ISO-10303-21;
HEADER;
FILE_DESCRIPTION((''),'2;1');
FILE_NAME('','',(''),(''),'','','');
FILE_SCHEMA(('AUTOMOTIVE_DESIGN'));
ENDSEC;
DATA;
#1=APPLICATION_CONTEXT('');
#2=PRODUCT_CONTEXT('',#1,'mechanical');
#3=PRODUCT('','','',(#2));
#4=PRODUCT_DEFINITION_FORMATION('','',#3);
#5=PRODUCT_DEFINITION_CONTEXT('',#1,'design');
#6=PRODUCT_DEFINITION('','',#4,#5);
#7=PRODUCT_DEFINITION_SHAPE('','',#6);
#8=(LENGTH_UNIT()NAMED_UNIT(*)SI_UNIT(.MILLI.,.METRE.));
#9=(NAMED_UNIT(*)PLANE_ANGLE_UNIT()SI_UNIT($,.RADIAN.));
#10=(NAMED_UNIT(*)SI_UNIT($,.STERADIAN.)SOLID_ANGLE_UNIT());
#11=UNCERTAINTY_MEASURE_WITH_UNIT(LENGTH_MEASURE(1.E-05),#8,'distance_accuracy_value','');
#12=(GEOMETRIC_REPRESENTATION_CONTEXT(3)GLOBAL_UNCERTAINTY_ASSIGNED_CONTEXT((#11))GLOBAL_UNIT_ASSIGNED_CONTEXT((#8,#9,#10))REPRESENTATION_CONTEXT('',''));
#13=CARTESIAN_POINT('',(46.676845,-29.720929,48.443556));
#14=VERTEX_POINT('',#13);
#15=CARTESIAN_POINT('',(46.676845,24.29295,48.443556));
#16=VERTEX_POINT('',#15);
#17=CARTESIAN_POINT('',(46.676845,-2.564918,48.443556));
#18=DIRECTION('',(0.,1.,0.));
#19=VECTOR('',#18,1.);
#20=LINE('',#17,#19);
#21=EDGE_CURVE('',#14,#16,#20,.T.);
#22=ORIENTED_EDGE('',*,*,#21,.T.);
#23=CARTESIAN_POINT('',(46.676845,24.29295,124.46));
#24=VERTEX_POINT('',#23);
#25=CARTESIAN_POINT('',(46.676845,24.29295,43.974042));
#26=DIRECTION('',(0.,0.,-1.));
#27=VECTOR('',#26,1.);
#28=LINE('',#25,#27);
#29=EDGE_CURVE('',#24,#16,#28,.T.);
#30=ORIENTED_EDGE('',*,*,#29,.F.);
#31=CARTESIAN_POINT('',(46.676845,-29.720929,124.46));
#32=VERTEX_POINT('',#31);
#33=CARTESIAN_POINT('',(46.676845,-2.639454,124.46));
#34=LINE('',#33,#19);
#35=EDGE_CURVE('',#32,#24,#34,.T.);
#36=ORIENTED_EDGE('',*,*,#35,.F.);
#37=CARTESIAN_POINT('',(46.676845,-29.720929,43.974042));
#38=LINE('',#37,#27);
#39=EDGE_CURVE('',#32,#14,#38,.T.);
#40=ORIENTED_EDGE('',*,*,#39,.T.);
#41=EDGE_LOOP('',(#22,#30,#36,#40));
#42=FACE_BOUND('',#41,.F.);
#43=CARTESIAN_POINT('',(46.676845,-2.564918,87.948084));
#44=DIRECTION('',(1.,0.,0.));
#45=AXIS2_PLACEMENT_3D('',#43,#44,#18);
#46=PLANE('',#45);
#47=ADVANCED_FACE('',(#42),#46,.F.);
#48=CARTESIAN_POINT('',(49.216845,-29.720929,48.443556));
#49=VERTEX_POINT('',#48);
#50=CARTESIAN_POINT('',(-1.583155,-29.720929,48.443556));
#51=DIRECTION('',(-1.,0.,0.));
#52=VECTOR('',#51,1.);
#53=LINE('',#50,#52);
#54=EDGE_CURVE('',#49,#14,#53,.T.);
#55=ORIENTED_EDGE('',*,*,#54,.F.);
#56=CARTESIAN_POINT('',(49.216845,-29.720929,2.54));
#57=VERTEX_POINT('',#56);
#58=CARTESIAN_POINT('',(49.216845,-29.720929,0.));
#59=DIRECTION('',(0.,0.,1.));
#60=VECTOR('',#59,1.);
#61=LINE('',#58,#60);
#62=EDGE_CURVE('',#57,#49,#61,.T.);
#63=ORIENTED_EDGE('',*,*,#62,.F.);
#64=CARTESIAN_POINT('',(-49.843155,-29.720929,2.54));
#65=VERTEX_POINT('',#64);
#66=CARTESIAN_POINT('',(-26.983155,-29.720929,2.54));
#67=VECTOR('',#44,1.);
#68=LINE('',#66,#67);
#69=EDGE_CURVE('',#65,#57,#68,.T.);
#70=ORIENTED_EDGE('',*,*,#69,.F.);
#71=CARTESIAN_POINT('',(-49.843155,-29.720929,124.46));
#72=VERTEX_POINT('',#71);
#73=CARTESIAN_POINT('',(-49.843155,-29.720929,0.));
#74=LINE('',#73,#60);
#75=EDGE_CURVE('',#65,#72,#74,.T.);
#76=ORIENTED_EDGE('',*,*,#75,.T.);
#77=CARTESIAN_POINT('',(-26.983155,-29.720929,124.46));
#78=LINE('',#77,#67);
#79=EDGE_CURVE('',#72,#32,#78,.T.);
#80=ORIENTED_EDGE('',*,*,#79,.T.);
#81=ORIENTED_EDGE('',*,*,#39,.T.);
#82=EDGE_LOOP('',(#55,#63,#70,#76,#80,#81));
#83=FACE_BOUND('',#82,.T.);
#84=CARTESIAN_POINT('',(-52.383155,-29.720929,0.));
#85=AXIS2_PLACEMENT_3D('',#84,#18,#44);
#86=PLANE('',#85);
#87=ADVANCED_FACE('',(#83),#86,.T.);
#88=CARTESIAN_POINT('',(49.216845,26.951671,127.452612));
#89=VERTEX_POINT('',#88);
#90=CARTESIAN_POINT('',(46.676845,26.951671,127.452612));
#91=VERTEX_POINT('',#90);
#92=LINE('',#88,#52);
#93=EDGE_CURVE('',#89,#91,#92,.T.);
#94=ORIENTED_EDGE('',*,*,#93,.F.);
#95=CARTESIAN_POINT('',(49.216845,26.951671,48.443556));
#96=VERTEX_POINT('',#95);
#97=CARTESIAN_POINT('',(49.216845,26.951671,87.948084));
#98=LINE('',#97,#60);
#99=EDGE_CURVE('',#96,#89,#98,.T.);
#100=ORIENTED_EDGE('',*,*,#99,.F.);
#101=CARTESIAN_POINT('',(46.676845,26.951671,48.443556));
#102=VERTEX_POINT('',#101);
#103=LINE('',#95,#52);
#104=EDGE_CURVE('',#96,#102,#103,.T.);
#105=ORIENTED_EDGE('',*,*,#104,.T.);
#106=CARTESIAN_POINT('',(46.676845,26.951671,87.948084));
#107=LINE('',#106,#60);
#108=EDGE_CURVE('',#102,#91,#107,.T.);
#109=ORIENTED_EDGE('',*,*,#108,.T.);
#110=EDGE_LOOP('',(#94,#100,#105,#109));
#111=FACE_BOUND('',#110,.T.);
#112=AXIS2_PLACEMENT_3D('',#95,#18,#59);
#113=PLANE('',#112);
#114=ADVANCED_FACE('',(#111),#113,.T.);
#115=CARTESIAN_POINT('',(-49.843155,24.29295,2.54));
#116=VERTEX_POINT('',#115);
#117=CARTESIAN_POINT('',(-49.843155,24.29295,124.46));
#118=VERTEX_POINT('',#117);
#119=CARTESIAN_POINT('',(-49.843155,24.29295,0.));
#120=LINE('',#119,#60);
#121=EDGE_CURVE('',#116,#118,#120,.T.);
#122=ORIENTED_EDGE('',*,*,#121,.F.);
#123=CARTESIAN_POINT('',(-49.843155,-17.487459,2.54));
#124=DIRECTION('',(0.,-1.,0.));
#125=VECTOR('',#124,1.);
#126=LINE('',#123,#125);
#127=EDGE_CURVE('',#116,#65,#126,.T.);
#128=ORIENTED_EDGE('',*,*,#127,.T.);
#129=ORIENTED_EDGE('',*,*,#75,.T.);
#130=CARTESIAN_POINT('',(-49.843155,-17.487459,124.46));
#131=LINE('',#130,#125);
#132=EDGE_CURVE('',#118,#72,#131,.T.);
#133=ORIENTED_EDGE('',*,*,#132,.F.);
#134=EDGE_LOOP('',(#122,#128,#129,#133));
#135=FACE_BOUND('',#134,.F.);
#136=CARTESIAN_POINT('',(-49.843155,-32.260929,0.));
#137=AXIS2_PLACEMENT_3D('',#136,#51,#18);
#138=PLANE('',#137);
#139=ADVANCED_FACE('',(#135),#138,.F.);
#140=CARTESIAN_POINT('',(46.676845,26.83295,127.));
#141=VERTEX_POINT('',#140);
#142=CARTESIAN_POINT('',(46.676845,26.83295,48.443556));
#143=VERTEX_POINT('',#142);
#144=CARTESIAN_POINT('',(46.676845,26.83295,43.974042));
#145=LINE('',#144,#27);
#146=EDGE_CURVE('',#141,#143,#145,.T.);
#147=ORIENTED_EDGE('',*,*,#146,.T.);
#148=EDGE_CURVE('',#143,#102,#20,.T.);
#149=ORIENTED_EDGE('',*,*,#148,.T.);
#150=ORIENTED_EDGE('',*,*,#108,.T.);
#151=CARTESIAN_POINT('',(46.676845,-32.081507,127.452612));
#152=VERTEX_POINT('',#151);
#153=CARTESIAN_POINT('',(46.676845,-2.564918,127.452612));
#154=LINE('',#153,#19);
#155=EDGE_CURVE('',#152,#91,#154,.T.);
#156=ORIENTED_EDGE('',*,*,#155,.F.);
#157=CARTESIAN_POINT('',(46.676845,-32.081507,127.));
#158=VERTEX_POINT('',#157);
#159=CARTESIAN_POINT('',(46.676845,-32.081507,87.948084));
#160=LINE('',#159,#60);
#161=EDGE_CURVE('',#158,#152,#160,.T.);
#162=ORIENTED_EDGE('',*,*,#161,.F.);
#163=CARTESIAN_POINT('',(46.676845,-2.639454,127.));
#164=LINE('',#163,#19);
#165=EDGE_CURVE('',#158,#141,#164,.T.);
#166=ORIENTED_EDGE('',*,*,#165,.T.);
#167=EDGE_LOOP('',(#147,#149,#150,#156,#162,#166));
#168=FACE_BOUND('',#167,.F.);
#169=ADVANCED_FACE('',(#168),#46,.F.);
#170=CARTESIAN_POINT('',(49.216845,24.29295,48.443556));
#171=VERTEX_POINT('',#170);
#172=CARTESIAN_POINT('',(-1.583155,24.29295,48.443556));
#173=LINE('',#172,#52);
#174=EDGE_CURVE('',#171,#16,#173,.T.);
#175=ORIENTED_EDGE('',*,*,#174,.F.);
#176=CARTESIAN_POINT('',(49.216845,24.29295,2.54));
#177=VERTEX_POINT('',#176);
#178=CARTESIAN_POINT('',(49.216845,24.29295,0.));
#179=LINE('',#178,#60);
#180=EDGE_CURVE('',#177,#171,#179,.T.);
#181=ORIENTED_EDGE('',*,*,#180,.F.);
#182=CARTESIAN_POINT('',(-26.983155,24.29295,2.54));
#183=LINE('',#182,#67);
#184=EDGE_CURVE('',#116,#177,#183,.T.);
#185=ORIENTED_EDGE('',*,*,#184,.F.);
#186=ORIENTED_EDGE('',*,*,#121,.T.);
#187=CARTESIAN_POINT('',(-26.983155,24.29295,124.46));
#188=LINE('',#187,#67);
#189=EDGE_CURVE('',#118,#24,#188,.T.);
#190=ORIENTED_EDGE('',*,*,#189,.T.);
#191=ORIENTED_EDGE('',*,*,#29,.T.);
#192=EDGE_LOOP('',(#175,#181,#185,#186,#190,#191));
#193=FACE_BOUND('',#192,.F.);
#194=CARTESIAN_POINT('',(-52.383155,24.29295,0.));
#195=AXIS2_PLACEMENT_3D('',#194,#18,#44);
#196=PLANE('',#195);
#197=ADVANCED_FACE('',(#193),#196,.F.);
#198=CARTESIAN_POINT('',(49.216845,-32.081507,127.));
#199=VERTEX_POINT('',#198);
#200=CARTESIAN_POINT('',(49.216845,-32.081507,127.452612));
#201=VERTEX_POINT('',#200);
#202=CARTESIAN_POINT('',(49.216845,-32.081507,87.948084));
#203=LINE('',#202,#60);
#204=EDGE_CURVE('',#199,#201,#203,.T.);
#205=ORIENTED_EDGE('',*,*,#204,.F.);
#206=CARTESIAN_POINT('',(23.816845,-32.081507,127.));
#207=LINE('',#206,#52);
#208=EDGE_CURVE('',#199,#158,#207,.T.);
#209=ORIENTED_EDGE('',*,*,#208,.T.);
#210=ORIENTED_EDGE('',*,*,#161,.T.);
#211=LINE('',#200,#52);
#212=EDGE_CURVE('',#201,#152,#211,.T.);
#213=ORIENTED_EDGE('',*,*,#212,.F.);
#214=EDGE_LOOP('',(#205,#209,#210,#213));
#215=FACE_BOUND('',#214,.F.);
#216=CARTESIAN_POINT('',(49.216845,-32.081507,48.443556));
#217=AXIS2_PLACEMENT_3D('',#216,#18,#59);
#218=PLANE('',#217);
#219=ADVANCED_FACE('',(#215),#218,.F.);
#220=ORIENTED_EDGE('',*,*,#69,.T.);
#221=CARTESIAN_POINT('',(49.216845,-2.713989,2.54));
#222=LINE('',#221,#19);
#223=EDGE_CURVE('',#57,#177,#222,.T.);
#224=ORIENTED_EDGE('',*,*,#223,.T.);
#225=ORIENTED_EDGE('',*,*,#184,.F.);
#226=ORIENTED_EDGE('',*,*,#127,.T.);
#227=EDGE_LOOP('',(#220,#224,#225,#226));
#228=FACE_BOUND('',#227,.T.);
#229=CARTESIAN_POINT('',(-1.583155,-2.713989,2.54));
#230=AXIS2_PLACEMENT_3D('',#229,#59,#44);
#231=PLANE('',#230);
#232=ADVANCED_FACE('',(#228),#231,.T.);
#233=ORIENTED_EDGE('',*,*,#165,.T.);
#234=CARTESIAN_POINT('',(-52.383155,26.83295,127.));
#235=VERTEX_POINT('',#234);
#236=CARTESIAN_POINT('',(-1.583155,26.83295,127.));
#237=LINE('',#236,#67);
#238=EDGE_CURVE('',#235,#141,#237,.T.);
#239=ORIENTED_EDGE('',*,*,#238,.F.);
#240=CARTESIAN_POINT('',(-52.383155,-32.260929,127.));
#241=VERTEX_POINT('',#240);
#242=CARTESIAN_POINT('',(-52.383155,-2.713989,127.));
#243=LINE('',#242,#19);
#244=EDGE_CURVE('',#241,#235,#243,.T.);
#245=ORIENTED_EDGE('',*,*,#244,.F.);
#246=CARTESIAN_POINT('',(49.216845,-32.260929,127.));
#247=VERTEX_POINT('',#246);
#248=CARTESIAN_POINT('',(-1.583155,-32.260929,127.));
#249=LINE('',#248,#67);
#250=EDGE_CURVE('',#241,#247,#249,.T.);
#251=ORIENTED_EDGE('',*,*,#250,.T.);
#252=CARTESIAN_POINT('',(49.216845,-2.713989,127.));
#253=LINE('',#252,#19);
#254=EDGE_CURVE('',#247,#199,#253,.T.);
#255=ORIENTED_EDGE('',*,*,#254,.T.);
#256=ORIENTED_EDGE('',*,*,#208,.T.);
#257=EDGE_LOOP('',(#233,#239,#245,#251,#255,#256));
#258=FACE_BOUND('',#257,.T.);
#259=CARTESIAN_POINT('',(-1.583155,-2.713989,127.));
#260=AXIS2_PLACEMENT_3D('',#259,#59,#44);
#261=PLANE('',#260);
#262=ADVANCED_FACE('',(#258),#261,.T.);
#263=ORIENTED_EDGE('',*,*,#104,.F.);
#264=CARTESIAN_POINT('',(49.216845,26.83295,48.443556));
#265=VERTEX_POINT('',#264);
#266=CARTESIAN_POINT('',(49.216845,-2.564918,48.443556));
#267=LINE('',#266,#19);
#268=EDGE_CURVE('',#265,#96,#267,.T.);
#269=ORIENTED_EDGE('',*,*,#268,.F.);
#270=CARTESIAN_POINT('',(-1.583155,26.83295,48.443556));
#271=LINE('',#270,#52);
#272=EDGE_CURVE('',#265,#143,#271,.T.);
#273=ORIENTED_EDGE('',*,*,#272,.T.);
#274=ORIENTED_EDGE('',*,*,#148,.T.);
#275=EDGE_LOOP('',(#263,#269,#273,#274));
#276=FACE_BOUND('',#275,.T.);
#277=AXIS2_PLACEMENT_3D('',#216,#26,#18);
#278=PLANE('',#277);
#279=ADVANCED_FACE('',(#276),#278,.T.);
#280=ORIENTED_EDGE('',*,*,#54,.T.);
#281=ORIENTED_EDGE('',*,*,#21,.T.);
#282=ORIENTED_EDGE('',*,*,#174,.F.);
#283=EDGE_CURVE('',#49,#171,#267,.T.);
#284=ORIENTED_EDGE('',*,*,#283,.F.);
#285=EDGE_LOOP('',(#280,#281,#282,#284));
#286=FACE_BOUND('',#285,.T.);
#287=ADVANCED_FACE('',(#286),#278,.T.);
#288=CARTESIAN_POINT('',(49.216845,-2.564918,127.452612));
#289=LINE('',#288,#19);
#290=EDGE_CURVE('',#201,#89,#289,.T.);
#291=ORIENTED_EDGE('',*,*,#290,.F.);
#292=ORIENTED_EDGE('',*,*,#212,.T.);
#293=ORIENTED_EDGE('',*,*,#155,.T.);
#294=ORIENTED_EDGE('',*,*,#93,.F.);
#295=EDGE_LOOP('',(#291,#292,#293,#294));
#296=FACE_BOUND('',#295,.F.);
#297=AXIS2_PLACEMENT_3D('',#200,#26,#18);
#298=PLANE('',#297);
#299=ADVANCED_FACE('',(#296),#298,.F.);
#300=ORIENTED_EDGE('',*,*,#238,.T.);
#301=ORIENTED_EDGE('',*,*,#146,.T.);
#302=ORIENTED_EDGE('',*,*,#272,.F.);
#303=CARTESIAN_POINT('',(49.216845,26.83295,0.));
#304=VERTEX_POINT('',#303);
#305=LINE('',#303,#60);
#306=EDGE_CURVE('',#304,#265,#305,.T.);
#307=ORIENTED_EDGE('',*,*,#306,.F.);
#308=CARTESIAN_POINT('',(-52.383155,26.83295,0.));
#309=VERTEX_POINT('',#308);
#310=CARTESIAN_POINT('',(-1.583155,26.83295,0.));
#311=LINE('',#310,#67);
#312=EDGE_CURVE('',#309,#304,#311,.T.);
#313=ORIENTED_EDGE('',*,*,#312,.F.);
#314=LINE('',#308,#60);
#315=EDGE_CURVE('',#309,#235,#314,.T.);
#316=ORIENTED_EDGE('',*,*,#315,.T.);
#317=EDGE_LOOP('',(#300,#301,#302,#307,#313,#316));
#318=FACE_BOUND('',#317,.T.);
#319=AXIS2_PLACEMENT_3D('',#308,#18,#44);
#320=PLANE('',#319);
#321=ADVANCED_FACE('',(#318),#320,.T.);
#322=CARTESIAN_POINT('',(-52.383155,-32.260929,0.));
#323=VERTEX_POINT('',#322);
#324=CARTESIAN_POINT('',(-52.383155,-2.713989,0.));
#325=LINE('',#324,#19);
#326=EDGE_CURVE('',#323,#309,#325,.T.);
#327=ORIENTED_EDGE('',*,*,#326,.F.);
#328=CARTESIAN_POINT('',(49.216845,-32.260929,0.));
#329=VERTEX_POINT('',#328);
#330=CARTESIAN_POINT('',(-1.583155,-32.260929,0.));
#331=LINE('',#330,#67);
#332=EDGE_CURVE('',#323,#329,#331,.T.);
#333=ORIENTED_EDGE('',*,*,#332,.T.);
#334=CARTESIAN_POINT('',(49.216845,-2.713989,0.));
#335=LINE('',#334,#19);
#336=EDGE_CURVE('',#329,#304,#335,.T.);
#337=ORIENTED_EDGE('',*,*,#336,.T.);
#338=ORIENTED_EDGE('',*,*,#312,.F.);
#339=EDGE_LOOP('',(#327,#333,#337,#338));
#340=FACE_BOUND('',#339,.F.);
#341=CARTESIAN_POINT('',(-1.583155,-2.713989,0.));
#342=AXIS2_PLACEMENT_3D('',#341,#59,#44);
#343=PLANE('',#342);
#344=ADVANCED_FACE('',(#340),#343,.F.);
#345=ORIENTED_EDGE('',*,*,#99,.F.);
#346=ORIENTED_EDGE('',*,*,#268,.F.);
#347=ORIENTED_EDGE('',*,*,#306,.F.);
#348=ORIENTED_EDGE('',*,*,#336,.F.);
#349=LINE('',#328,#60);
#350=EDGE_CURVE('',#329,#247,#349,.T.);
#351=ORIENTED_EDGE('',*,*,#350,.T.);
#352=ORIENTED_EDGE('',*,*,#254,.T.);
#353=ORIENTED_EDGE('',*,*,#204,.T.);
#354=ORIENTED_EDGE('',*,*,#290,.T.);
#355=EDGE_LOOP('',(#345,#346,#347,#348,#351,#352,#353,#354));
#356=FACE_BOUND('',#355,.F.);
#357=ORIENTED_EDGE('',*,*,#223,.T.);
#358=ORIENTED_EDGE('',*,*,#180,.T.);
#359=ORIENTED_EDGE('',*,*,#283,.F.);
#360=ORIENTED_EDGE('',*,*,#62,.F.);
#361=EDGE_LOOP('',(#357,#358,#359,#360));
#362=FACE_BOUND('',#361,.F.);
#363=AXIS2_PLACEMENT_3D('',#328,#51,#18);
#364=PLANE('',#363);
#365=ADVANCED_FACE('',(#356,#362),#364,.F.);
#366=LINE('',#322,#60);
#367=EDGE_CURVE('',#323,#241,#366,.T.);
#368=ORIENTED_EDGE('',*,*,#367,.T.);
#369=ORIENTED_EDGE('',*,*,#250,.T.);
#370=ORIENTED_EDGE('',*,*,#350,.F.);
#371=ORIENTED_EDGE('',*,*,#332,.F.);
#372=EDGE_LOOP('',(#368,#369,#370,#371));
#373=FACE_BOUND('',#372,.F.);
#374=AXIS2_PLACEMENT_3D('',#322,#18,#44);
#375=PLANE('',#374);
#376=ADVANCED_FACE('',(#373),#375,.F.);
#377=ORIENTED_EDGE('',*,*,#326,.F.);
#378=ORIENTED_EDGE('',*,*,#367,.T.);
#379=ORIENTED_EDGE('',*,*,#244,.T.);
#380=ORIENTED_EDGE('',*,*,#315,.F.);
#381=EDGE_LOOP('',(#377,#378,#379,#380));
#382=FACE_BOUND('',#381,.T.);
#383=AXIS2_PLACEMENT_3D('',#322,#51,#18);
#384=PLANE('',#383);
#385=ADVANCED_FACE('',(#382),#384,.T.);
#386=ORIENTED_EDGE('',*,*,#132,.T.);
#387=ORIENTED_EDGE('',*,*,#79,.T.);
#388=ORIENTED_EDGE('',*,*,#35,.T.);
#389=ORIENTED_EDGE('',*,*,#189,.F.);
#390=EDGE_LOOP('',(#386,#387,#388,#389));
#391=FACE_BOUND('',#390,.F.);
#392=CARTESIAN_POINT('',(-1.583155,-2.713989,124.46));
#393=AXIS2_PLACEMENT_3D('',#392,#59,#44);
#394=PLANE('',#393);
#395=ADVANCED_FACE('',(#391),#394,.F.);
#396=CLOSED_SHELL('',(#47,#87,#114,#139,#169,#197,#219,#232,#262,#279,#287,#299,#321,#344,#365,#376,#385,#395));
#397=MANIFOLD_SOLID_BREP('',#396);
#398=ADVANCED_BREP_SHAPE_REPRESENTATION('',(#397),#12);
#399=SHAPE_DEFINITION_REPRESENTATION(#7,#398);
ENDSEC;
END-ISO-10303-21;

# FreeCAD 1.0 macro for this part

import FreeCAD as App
import Part
import Sketcher
Q = App.Units.Quantity


def faces_at(feature, points):
    """Names of the faces that lie closest to the given points."""
    faces = feature.Shape.Faces
    near = lambda p: min(range(len(faces)), key=lambda i: faces[i].distToShape(Part.Vertex(*p))[0])
    return sorted({f"Face{near(p) + 1}" for p in points})


def add_polygon(sketch, points):
    """Adds a closed chain of lines whose ends are joined by coincident constraints."""
    first, n = sketch.GeometryCount, len(points)
    for a, b in zip(points, points[1:] + points[:1]):
        sketch.addGeometry(Part.LineSegment(App.Vector(*a, 0), App.Vector(*b, 0)), False)
    for i in range(n):
        sketch.addConstraint(Sketcher.Constraint("Coincident", first + i, 2, first + (i + 1) % n, 1))

doc = App.newDocument("Part")
body = doc.addObject("PartDesign::Body", "Body")

# Sketch on XY plane
sketch1 = body.newObject("Sketcher::SketchObject", "Sketch")
sketch1.AttachmentSupport = (doc.getObject("XY_Plane"), [""])
sketch1.MapMode = "FlatFace"
add_polygon(sketch1, [(-52, 27), (-52, -32), (49, -32), (49, 27)])  # lines 0-3
sketch1.addConstraint(Sketcher.Constraint("Vertical", 0))
sketch1.addConstraint(Sketcher.Constraint("Horizontal", 1))
sketch1.addConstraint(Sketcher.Constraint("Vertical", 2))
sketch1.addConstraint(Sketcher.Constraint("Horizontal", 3))
sketch1.addConstraint(Sketcher.Constraint("DistanceX", 1, 1, 1, 2, Q("4 in")))
sketch1.addConstraint(Sketcher.Constraint("DistanceY", 0, 2, 0, 1, Q("59.093878 mm")))
sketch1.addConstraint(Sketcher.Constraint("DistanceY", 0, 2, -1, 1, Q("32.260929 mm")))
sketch1.addConstraint(Sketcher.Constraint("DistanceX", 0, 2, -1, 1, Q("52.383155 mm")))
pad1 = body.newObject("PartDesign::Pad", "Pad")
pad1.Profile = sketch1
pad1.Length = Q("5 in")
doc.recompute()

thickness = body.newObject("PartDesign::Thickness", "Thickness")
thickness.Base = (pad1, faces_at(pad1, [(49.217, -2.714, 63.5)]))
thickness.Value = Q("0.1 in")
thickness.Reversed = True
thickness.Join = "Arc"

# Sketch on YZ plane
sketch2 = body.newObject("Sketcher::SketchObject", "Sketch001")
sketch2.AttachmentSupport = (doc.getObject("YZ_Plane"), [""])
sketch2.MapMode = "FlatFace"
sketch2.AttachmentOffset = App.Placement(App.Vector(0, 0, 49.216845), App.Rotation())
add_polygon(sketch2, [(-32, 127), (-32, 48), (27, 48), (27, 127)])  # lines 0-3
sketch2.addConstraint(Sketcher.Constraint("Vertical", 0))
sketch2.addConstraint(Sketcher.Constraint("Horizontal", 1))
sketch2.addConstraint(Sketcher.Constraint("Vertical", 2))
sketch2.addConstraint(Sketcher.Constraint("Horizontal", 3))
sketch2.addConstraint(Sketcher.Constraint("DistanceX", 1, 1, 1, 2, Q("59.033178 mm")))
sketch2.addConstraint(Sketcher.Constraint("DistanceY", 0, 2, 0, 1, Q("79.009056 mm")))
sketch2.addConstraint(Sketcher.Constraint("DistanceX", -1, 1, 1, 2, Q("26.951671 mm")))
sketch2.addConstraint(Sketcher.Constraint("DistanceY", -1, 1, 2, 2, Q("127.452612 mm")))
pad2 = body.newObject("PartDesign::Pad", "Pad001")
pad2.Profile = sketch2
pad2.Length = Q("0.1 in")
pad2.Reversed = True

doc.recompute()
